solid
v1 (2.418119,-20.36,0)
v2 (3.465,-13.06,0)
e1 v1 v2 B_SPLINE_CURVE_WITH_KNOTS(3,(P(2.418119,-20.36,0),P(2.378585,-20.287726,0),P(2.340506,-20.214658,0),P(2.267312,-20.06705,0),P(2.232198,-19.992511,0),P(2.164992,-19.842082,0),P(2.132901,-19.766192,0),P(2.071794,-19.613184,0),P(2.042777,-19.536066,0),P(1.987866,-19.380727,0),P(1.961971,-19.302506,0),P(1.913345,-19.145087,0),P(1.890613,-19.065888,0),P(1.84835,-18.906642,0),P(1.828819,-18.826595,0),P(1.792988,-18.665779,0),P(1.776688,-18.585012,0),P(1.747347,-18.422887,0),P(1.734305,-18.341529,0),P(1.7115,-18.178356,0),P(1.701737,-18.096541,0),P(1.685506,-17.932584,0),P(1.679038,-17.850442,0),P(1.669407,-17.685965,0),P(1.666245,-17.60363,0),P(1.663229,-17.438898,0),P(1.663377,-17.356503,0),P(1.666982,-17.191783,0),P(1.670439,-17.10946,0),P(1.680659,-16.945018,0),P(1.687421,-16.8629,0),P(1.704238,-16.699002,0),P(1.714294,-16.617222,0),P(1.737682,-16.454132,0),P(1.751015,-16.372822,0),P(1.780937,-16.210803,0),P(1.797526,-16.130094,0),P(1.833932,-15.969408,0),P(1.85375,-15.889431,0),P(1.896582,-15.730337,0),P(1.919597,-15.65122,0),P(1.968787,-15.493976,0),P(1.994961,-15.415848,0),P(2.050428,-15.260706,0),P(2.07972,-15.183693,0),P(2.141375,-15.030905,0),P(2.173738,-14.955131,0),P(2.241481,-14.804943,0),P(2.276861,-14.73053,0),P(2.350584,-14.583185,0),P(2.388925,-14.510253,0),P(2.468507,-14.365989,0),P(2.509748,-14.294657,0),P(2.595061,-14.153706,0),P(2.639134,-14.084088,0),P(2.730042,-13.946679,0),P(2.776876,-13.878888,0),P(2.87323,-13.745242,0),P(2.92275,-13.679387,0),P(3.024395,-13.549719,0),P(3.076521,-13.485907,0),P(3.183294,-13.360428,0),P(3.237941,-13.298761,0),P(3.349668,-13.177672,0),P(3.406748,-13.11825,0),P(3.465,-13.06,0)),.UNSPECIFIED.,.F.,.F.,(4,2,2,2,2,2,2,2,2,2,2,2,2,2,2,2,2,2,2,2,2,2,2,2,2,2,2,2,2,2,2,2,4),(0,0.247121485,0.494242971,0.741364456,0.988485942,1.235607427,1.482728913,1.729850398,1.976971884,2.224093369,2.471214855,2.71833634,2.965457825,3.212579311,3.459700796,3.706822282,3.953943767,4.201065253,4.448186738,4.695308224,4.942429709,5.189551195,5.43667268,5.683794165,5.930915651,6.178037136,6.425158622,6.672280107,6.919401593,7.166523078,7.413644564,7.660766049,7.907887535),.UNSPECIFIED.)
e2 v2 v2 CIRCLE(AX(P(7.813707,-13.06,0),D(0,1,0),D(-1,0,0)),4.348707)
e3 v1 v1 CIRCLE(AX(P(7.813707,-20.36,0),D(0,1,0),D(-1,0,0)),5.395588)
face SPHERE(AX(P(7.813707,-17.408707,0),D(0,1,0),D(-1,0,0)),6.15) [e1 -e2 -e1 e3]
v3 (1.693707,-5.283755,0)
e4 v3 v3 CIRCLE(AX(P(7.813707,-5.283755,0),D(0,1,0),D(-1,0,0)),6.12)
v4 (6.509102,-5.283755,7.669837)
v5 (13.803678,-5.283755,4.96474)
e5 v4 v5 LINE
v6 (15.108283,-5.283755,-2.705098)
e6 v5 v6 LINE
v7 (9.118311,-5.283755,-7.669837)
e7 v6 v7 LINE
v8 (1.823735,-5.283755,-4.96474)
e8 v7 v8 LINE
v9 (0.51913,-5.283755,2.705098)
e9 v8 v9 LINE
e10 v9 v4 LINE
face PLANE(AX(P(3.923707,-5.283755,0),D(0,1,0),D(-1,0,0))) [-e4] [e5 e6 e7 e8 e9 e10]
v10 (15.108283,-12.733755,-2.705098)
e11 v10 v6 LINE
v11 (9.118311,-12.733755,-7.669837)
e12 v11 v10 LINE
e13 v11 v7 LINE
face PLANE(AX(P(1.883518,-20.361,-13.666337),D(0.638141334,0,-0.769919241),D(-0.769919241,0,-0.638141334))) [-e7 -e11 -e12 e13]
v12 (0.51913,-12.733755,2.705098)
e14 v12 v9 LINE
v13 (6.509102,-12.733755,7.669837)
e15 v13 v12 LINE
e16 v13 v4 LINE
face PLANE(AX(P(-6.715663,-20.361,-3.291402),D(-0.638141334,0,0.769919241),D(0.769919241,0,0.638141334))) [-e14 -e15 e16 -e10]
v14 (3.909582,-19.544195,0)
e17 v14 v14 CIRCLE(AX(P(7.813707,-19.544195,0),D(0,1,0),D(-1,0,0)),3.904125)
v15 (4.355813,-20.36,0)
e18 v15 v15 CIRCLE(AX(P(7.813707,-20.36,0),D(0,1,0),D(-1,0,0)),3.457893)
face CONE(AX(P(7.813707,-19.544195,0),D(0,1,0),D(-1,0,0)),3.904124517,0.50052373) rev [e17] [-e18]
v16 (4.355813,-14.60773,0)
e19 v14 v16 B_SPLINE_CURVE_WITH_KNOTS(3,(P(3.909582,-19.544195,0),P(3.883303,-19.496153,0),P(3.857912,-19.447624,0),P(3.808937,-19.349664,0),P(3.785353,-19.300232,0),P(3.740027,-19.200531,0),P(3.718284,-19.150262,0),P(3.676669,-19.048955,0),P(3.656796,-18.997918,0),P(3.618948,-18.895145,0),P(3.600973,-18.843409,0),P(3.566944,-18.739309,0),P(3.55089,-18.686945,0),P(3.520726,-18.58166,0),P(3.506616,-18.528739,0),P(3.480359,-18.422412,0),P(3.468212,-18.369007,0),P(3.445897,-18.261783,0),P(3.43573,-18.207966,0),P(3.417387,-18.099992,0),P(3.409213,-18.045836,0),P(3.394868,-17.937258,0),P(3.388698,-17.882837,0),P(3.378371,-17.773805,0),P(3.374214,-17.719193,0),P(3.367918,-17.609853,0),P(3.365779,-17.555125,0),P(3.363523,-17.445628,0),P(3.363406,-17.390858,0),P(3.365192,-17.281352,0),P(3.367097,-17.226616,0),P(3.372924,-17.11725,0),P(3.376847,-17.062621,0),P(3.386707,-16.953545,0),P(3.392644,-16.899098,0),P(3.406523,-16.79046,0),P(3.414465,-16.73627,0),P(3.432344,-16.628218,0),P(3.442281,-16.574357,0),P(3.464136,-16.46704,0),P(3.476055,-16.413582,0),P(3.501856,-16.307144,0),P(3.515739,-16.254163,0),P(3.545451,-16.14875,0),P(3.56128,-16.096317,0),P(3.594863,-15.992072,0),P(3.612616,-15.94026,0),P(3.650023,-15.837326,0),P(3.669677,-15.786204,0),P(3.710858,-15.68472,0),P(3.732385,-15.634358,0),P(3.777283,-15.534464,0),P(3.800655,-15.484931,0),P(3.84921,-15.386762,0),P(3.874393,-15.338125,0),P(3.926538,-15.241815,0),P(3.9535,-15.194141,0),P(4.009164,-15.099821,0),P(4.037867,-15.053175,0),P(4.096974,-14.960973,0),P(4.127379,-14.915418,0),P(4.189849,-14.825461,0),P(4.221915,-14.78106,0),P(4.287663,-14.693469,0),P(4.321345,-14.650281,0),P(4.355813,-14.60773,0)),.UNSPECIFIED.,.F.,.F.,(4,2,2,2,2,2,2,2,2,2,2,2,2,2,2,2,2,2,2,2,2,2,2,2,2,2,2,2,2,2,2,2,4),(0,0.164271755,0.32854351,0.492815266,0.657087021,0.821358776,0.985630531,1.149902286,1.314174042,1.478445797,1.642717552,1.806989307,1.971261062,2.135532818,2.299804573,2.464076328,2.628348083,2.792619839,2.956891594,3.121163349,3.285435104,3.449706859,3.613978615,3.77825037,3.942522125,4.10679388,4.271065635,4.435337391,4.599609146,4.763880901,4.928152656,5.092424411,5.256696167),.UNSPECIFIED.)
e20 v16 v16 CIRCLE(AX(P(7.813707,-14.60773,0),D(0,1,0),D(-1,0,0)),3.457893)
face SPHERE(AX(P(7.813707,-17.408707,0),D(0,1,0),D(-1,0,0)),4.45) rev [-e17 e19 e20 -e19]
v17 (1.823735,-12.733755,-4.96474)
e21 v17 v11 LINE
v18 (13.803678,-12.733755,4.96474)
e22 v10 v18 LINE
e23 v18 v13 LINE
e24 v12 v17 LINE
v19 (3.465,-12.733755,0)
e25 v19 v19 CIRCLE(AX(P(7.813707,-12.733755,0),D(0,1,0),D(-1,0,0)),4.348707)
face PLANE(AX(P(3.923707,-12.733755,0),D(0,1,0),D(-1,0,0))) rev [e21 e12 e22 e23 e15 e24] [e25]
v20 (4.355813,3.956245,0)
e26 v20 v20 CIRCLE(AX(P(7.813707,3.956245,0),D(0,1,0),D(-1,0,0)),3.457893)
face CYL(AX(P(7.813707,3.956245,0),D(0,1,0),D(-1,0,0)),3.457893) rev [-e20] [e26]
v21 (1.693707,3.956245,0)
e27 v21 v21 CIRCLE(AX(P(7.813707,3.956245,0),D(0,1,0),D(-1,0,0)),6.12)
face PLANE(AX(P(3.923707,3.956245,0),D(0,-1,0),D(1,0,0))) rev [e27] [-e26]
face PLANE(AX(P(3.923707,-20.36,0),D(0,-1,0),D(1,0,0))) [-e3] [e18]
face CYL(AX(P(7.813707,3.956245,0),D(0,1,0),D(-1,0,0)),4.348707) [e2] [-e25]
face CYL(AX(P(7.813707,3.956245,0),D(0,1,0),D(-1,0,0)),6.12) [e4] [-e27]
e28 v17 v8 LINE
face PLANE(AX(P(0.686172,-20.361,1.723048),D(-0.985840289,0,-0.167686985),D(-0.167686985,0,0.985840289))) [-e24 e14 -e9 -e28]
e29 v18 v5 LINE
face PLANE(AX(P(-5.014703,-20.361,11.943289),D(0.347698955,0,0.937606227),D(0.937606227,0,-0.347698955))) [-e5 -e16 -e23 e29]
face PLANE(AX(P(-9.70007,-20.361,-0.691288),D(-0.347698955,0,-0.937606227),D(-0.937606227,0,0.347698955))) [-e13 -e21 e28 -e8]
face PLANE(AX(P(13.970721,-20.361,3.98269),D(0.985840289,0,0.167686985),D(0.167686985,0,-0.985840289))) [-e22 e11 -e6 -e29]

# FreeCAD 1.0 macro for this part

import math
import FreeCAD as App
import Part
import Sketcher
Q = App.Units.Quantity

doc = App.newDocument("Part")
params = doc.addObject("Spreadsheet::Sheet", "Params")
for row, (alias, value) in enumerate([
    ("sketch1_radius", "6.15 mm"),
    ("sketch1_radius2", "4.45 mm"),
    ("sketch1_width", "1.66 mm"),
    ("sketch1_height", "9.24 mm"),
    ("sketch1_height2", "7.45 mm"),
    ("revolution_angle", "360 deg"),
    ("sketch2_radius", "7.78 mm"),
    ("sketch2_length", "7.78 mm"),
    ("sketch3_radius", "7.78 mm"),
    ("sketch3_length", "7.78 mm"),
    ("sketch4_radius", "7.78 mm"),
    ("sketch4_length", "7.78 mm"),
    ("sketch5_radius", "7.78 mm"),
    ("sketch5_length", "7.78 mm"),
    ("sketch6_radius", "7.78 mm"),
    ("sketch6_length", "7.78 mm"),
    ("sketch7_radius", "7.78 mm"),
    ("sketch7_length", "7.78 mm"),
], start=1):
    params.set(f"A{row}", alias)
    params.set(f"B{row}", "=" + value)
    params.setAlias(f"B{row}", alias)

body = doc.addObject("PartDesign::Body", "Body")

sketch1 = doc.addObject("Sketcher::SketchObject", "Sketch")
body.addObject(sketch1)
sketch1.AttachmentSupport = (doc.XY_Plane, [""])
sketch1.MapMode = "FlatFace"
sketch1.addGeometry([
    Part.LineSegment(App.Vector(1.69, 3.96, 0), App.Vector(1.69, -5.28, 0)),
    Part.LineSegment(App.Vector(1.69, -5.28, 0), App.Vector(0.03, -5.28, 0)),
    Part.LineSegment(App.Vector(0.03, -5.28, 0), App.Vector(0.03, -12.73, 0)),
    Part.LineSegment(App.Vector(0.03, -12.73, 0), App.Vector(3.46, -12.73, 0)),
    Part.LineSegment(App.Vector(3.46, -12.73, 0), App.Vector(3.46, -13.06, 0)),
    Part.ArcOfCircle(Part.Circle(App.Vector(7.81, -17.41, 0), App.Vector(0, 0, 1), 6.15), math.radians(135), math.radians(209)),
    Part.LineSegment(App.Vector(2.42, -20.36, 0), App.Vector(4.36, -20.36, 0)),
    Part.LineSegment(App.Vector(4.36, -20.36, 0), App.Vector(3.91, -19.54, 0)),
    Part.ArcOfCircle(Part.Circle(App.Vector(7.81, -17.41, 0), App.Vector(0, 0, 1), 4.45), math.radians(-167.75), math.radians(-151.32)),
    Part.ArcOfCircle(Part.Circle(App.Vector(7.81, -17.41, 0), App.Vector(0, 0, 1), 4.45), math.radians(168), math.radians(192)),
    Part.ArcOfCircle(Part.Circle(App.Vector(7.81, -17.41, 0), App.Vector(0, 0, 1), 4.45), math.radians(141), math.radians(168)),
    Part.LineSegment(App.Vector(4.36, -14.61, 0), App.Vector(4.36, -13.95, 0)),
    Part.LineSegment(App.Vector(4.36, -13.95, 0), App.Vector(4.36, -5.28, 0)),
    Part.LineSegment(App.Vector(4.36, -5.28, 0), App.Vector(4.36, 3.96, 0)),
    Part.LineSegment(App.Vector(4.36, 3.96, 0), App.Vector(1.69, 3.96, 0)),
], False)
sketch1.addGeometry(Part.LineSegment(App.Vector(7.81, 3.96, 0), App.Vector(7.81, -20.36, 0)), True)
sketch1.addConstraint([
    Sketcher.Constraint("Coincident", 0, 2, 1, 1),
    Sketcher.Constraint("Coincident", 1, 2, 2, 1),
    Sketcher.Constraint("Coincident", 2, 2, 3, 1),
    Sketcher.Constraint("Coincident", 3, 2, 4, 1),
    Sketcher.Constraint("Coincident", 4, 2, 5, 1),
    Sketcher.Constraint("Coincident", 5, 2, 6, 1),
    Sketcher.Constraint("Coincident", 6, 2, 7, 1),
    Sketcher.Constraint("Tangent", 7, 2, 8, 2),
    Sketcher.Constraint("Tangent", 8, 1, 9, 2),
    Sketcher.Constraint("Tangent", 9, 1, 10, 2),
    Sketcher.Constraint("Coincident", 10, 1, 11, 1),
    Sketcher.Constraint("Coincident", 11, 2, 12, 1),
    Sketcher.Constraint("Coincident", 12, 2, 13, 1),
    Sketcher.Constraint("Coincident", 13, 2, 14, 1),
    Sketcher.Constraint("Coincident", 14, 2, 0, 1),
    Sketcher.Constraint("Vertical", 0),
    Sketcher.Constraint("Horizontal", 1),
    Sketcher.Constraint("Vertical", 2),
    Sketcher.Constraint("Horizontal", 3),
    Sketcher.Constraint("Vertical", 4),
    Sketcher.Constraint("Horizontal", 6),
    Sketcher.Constraint("Vertical", 11),
    Sketcher.Constraint("Vertical", 12),
    Sketcher.Constraint("Vertical", 13),
    Sketcher.Constraint("Horizontal", 14),
    Sketcher.Constraint("Vertical", 15),
    Sketcher.Constraint("Coincident", 8, 3, 5, 3),
    Sketcher.Constraint("Coincident", 10, 3, 5, 3),
    Sketcher.Constraint("Horizontal", 1, 2, 12, 2),
    Sketcher.Constraint("Horizontal", 14, 2, 15, 1),
    Sketcher.Constraint("Horizontal", 6, 2, 15, 2),
    Sketcher.Constraint("Vertical", 4, 2, 8, 1),
    Sketcher.Constraint("Vertical", 8, 1, 9, 1),
    Sketcher.Constraint("Vertical", 6, 2, 10, 1),
    Sketcher.Constraint("Vertical", 10, 3, 15, 1),
    Sketcher.Constraint("Radius", 5, Q("6.15 mm")),
    Sketcher.Constraint("Radius", 8, Q("4.45 mm")),
    Sketcher.Constraint("DistanceX", 1, 2, 1, 1, Q("1.66 mm")),
    Sketcher.Constraint("DistanceY", 0, 2, 0, 1, Q("9.24 mm")),
    Sketcher.Constraint("DistanceY", 2, 2, 2, 1, Q("7.45 mm")),
    Sketcher.Constraint("DistanceY", 5, 2, 4, 2, Q("7.3 mm")),
    Sketcher.Constraint("DistanceY", 4, 2, -1, 1, Q("13.06 mm")),
    Sketcher.Constraint("DistanceX", 0, 2, 9, 3, Q("6.12 mm")),
    Sketcher.Constraint("DistanceX", -1, 1, 3, 2, Q("3.465 mm")),
    Sketcher.Constraint("DistanceY", 12, 1, 12, 2, Q("8.667058 mm")),
    Sketcher.Constraint("Distance", 7, Q("0.929871 mm")),
    Sketcher.Constraint("DistanceX", 3, 1, 3, 2, Q("3.431293 mm")),
    Sketcher.Constraint("DistanceY", 4, 2, 4, 1, Q("0.326245 mm")),
])
sketch1.setExpression("Constraints[35]", "Params.sketch1_radius")
sketch1.setExpression("Constraints[36]", "Params.sketch1_radius2")
sketch1.setExpression("Constraints[37]", "Params.sketch1_width")
sketch1.setExpression("Constraints[38]", "Params.sketch1_height")
sketch1.setExpression("Constraints[39]", "Params.sketch1_height2")
revolution = doc.addObject("PartDesign::Revolution", "Revolution")
body.addObject(revolution)
revolution.Profile = sketch1
revolution.ReferenceAxis = (sketch1, ["Axis0"])
revolution.setExpression("Angle", "Params.revolution_angle")

sketch2 = doc.addObject("Sketcher::SketchObject", "Sketch001")
body.addObject(sketch2)
sketch2.AttachmentSupport = (doc.XZ_Plane, [""])
sketch2.MapMode = "FlatFace"
sketch2.AttachmentOffset = App.Placement(App.Vector(0, 0, 5.283755), App.Rotation())
sketch2.addGeometry([
    Part.ArcOfCircle(Part.Circle(App.Vector(8, 0, 0), App.Vector(0, 0, 1), 8), math.radians(40), math.radians(100)),
    Part.LineSegment(App.Vector(14, 5, 0), App.Vector(7, 8, 0)),
], False)
sketch2.addConstraint([
    Sketcher.Constraint("Coincident", 0, 1, 1, 1),
    Sketcher.Constraint("Coincident", 1, 2, 0, 2),
    Sketcher.Constraint("PointOnObject", 0, 3, -1),
    Sketcher.Constraint("Radius", 0, Q("7.78 mm")),
    Sketcher.Constraint("Distance", 1, Q("7.78 mm")),
    Sketcher.Constraint("DistanceX", -1, 1, 1, 2, Q("6.509102 mm")),
    Sketcher.Constraint("DistanceX", -1, 1, 0, 1, Q("13.803678 mm")),
])
sketch2.setExpression("Constraints[3]", "Params.sketch2_radius")
sketch2.setExpression("Constraints[4]", "Params.sketch2_length")
pocket1 = doc.addObject("PartDesign::Pocket", "Pocket")
body.addObject(pocket1)
pocket1.Profile = sketch2
pocket1.Type = "UpToFirst"
pocket1.Reversed = True

sketch3 = doc.addObject("Sketcher::SketchObject", "Sketch002")
body.addObject(sketch3)
sketch3.AttachmentSupport = (doc.XZ_Plane, [""])
sketch3.MapMode = "FlatFace"
sketch3.AttachmentOffset = App.Placement(App.Vector(0, 0, 5.283755), App.Rotation())
sketch3.addGeometry([
    Part.LineSegment(App.Vector(15, -3, 0), App.Vector(14, 5, 0)),
    Part.ArcOfCircle(Part.Circle(App.Vector(8, 0, 0), App.Vector(0, 0, 1), 8), math.radians(-20), math.radians(40)),
], False)
sketch3.addConstraint([
    Sketcher.Constraint("Coincident", 0, 1, 1, 1),
    Sketcher.Constraint("Coincident", 1, 2, 0, 2),
    Sketcher.Constraint("PointOnObject", 1, 3, -1),
    Sketcher.Constraint("Radius", 1, Q("7.78 mm")),
    Sketcher.Constraint("Distance", 0, Q("7.78 mm")),
    Sketcher.Constraint("DistanceX", -1, 1, 1, 2, Q("13.803678 mm")),
    Sketcher.Constraint("DistanceY", -1, 1, 1, 2, Q("4.96474 mm")),
])
sketch3.setExpression("Constraints[3]", "Params.sketch3_radius")
sketch3.setExpression("Constraints[4]", "Params.sketch3_length")
pocket2 = doc.addObject("PartDesign::Pocket", "Pocket001")
body.addObject(pocket2)
pocket2.Profile = sketch3
pocket2.Type = "UpToFirst"
pocket2.Reversed = True

sketch4 = doc.addObject("Sketcher::SketchObject", "Sketch003")
body.addObject(sketch4)
sketch4.AttachmentSupport = (doc.XZ_Plane, [""])
sketch4.MapMode = "FlatFace"
sketch4.AttachmentOffset = App.Placement(App.Vector(0, 0, 5.283755), App.Rotation())
sketch4.addGeometry([
    Part.LineSegment(App.Vector(9, -8, 0), App.Vector(15, -3, 0)),
    Part.ArcOfCircle(Part.Circle(App.Vector(8, 0, 0), App.Vector(0, 0, 1), 8), math.radians(-80), math.radians(-20)),
], False)
sketch4.addConstraint([
    Sketcher.Constraint("Coincident", 0, 1, 1, 1),
    Sketcher.Constraint("Coincident", 1, 2, 0, 2),
    Sketcher.Constraint("PointOnObject", 1, 3, -1),
    Sketcher.Constraint("Radius", 1, Q("7.78 mm")),
    Sketcher.Constraint("Distance", 0, Q("7.78 mm")),
    Sketcher.Constraint("DistanceX", -1, 1, 0, 1, Q("9.118311 mm")),
    Sketcher.Constraint("DistanceX", 0, 1, 1, 2, Q("5.989972 mm")),
])
sketch4.setExpression("Constraints[3]", "Params.sketch4_radius")
sketch4.setExpression("Constraints[4]", "Params.sketch4_length")
pocket3 = doc.addObject("PartDesign::Pocket", "Pocket002")
body.addObject(pocket3)
pocket3.Profile = sketch4
pocket3.Type = "UpToFirst"
pocket3.Reversed = True

sketch5 = doc.addObject("Sketcher::SketchObject", "Sketch004")
body.addObject(sketch5)
sketch5.AttachmentSupport = (doc.XZ_Plane, [""])
sketch5.MapMode = "FlatFace"
sketch5.AttachmentOffset = App.Placement(App.Vector(0, 0, 5.283755), App.Rotation())
sketch5.addGeometry([
    Part.LineSegment(App.Vector(2, -5, 0), App.Vector(9, -8, 0)),
    Part.ArcOfCircle(Part.Circle(App.Vector(8, 0, 0), App.Vector(0, 0, 1), 8), math.radians(-140), math.radians(-80)),
], False)
sketch5.addConstraint([
    Sketcher.Constraint("Coincident", 0, 1, 1, 1),
    Sketcher.Constraint("Coincident", 1, 2, 0, 2),
    Sketcher.Constraint("PointOnObject", 1, 3, -1),
    Sketcher.Constraint("Radius", 1, Q("7.78 mm")),
    Sketcher.Constraint("Distance", 0, Q("7.78 mm")),
    Sketcher.Constraint("DistanceY", 0, 1, -1, 1, Q("4.96474 mm")),
    Sketcher.Constraint("DistanceX", -1, 1, 1, 2, Q("9.118311 mm")),
])
sketch5.setExpression("Constraints[3]", "Params.sketch5_radius")
sketch5.setExpression("Constraints[4]", "Params.sketch5_length")
pocket4 = doc.addObject("PartDesign::Pocket", "Pocket003")
body.addObject(pocket4)
pocket4.Profile = sketch5
pocket4.Type = "UpToFirst"
pocket4.Reversed = True

sketch6 = doc.addObject("Sketcher::SketchObject", "Sketch005")
body.addObject(sketch6)
sketch6.AttachmentSupport = (doc.XZ_Plane, [""])
sketch6.MapMode = "FlatFace"
sketch6.AttachmentOffset = App.Placement(App.Vector(0, 0, 5.283755), App.Rotation())
sketch6.addGeometry([
    Part.ArcOfCircle(Part.Circle(App.Vector(7.8, 0, 0), App.Vector(0, 0, 1), 7.8), math.radians(160), math.radians(180)),
    Part.LineSegment(App.Vector(0.5, 2.7, 0), App.Vector(1.8, -5, 0)),
    Part.ArcOfCircle(Part.Circle(App.Vector(7.8, 0, 0), App.Vector(0, 0, 1), 7.8), math.radians(180), math.radians(220)),
], False)
sketch6.addConstraint([
    Sketcher.Constraint("Coincident", 0, 1, 1, 1),
    Sketcher.Constraint("Coincident", 1, 2, 2, 2),
    Sketcher.Constraint("Tangent", 2, 1, 0, 2),
    Sketcher.Constraint("Equal", 0, 2),
    Sketcher.Constraint("PointOnObject", 0, 3, -1),
    Sketcher.Constraint("PointOnObject", 2, 1, -1),
    Sketcher.Constraint("Radius", 0, Q("7.78 mm")),
    Sketcher.Constraint("Distance", 1, Q("7.78 mm")),
    Sketcher.Constraint("DistanceX", -1, 1, 0, 1, Q("0.51913 mm")),
    Sketcher.Constraint("DistanceY", 1, 2, -1, 1, Q("4.96474 mm")),
])
sketch6.setExpression("Constraints[6]", "Params.sketch6_radius")
sketch6.setExpression("Constraints[7]", "Params.sketch6_length")
pocket5 = doc.addObject("PartDesign::Pocket", "Pocket004")
body.addObject(pocket5)
pocket5.Profile = sketch6
pocket5.Type = "UpToFirst"
pocket5.Reversed = True

sketch7 = doc.addObject("Sketcher::SketchObject", "Sketch006")
body.addObject(sketch7)
sketch7.AttachmentSupport = (doc.XZ_Plane, [""])
sketch7.MapMode = "FlatFace"
sketch7.AttachmentOffset = App.Placement(App.Vector(0, 0, 5.283755), App.Rotation())
sketch7.addGeometry([
    Part.ArcOfCircle(Part.Circle(App.Vector(8, 0, 0), App.Vector(0, 0, 1), 8), math.radians(100), math.radians(160)),
    Part.LineSegment(App.Vector(7, 8, 0), App.Vector(1, 3, 0)),
], False)
sketch7.addConstraint([
    Sketcher.Constraint("Coincident", 0, 1, 1, 1),
    Sketcher.Constraint("Coincident", 1, 2, 0, 2),
    Sketcher.Constraint("PointOnObject", 0, 3, -1),
    Sketcher.Constraint("Radius", 0, Q("7.78 mm")),
    Sketcher.Constraint("Distance", 1, Q("7.78 mm")),
    Sketcher.Constraint("DistanceX", -1, 1, 0, 1, Q("6.509102 mm")),
    Sketcher.Constraint("DistanceX", -1, 1, 1, 2, Q("0.51913 mm")),
])
sketch7.setExpression("Constraints[3]", "Params.sketch7_radius")
sketch7.setExpression("Constraints[4]", "Params.sketch7_length")
pocket6 = doc.addObject("PartDesign::Pocket", "Pocket005")
body.addObject(pocket6)
pocket6.Profile = sketch7
pocket6.Type = "UpToFirst"
pocket6.Reversed = True

doc.recompute()
